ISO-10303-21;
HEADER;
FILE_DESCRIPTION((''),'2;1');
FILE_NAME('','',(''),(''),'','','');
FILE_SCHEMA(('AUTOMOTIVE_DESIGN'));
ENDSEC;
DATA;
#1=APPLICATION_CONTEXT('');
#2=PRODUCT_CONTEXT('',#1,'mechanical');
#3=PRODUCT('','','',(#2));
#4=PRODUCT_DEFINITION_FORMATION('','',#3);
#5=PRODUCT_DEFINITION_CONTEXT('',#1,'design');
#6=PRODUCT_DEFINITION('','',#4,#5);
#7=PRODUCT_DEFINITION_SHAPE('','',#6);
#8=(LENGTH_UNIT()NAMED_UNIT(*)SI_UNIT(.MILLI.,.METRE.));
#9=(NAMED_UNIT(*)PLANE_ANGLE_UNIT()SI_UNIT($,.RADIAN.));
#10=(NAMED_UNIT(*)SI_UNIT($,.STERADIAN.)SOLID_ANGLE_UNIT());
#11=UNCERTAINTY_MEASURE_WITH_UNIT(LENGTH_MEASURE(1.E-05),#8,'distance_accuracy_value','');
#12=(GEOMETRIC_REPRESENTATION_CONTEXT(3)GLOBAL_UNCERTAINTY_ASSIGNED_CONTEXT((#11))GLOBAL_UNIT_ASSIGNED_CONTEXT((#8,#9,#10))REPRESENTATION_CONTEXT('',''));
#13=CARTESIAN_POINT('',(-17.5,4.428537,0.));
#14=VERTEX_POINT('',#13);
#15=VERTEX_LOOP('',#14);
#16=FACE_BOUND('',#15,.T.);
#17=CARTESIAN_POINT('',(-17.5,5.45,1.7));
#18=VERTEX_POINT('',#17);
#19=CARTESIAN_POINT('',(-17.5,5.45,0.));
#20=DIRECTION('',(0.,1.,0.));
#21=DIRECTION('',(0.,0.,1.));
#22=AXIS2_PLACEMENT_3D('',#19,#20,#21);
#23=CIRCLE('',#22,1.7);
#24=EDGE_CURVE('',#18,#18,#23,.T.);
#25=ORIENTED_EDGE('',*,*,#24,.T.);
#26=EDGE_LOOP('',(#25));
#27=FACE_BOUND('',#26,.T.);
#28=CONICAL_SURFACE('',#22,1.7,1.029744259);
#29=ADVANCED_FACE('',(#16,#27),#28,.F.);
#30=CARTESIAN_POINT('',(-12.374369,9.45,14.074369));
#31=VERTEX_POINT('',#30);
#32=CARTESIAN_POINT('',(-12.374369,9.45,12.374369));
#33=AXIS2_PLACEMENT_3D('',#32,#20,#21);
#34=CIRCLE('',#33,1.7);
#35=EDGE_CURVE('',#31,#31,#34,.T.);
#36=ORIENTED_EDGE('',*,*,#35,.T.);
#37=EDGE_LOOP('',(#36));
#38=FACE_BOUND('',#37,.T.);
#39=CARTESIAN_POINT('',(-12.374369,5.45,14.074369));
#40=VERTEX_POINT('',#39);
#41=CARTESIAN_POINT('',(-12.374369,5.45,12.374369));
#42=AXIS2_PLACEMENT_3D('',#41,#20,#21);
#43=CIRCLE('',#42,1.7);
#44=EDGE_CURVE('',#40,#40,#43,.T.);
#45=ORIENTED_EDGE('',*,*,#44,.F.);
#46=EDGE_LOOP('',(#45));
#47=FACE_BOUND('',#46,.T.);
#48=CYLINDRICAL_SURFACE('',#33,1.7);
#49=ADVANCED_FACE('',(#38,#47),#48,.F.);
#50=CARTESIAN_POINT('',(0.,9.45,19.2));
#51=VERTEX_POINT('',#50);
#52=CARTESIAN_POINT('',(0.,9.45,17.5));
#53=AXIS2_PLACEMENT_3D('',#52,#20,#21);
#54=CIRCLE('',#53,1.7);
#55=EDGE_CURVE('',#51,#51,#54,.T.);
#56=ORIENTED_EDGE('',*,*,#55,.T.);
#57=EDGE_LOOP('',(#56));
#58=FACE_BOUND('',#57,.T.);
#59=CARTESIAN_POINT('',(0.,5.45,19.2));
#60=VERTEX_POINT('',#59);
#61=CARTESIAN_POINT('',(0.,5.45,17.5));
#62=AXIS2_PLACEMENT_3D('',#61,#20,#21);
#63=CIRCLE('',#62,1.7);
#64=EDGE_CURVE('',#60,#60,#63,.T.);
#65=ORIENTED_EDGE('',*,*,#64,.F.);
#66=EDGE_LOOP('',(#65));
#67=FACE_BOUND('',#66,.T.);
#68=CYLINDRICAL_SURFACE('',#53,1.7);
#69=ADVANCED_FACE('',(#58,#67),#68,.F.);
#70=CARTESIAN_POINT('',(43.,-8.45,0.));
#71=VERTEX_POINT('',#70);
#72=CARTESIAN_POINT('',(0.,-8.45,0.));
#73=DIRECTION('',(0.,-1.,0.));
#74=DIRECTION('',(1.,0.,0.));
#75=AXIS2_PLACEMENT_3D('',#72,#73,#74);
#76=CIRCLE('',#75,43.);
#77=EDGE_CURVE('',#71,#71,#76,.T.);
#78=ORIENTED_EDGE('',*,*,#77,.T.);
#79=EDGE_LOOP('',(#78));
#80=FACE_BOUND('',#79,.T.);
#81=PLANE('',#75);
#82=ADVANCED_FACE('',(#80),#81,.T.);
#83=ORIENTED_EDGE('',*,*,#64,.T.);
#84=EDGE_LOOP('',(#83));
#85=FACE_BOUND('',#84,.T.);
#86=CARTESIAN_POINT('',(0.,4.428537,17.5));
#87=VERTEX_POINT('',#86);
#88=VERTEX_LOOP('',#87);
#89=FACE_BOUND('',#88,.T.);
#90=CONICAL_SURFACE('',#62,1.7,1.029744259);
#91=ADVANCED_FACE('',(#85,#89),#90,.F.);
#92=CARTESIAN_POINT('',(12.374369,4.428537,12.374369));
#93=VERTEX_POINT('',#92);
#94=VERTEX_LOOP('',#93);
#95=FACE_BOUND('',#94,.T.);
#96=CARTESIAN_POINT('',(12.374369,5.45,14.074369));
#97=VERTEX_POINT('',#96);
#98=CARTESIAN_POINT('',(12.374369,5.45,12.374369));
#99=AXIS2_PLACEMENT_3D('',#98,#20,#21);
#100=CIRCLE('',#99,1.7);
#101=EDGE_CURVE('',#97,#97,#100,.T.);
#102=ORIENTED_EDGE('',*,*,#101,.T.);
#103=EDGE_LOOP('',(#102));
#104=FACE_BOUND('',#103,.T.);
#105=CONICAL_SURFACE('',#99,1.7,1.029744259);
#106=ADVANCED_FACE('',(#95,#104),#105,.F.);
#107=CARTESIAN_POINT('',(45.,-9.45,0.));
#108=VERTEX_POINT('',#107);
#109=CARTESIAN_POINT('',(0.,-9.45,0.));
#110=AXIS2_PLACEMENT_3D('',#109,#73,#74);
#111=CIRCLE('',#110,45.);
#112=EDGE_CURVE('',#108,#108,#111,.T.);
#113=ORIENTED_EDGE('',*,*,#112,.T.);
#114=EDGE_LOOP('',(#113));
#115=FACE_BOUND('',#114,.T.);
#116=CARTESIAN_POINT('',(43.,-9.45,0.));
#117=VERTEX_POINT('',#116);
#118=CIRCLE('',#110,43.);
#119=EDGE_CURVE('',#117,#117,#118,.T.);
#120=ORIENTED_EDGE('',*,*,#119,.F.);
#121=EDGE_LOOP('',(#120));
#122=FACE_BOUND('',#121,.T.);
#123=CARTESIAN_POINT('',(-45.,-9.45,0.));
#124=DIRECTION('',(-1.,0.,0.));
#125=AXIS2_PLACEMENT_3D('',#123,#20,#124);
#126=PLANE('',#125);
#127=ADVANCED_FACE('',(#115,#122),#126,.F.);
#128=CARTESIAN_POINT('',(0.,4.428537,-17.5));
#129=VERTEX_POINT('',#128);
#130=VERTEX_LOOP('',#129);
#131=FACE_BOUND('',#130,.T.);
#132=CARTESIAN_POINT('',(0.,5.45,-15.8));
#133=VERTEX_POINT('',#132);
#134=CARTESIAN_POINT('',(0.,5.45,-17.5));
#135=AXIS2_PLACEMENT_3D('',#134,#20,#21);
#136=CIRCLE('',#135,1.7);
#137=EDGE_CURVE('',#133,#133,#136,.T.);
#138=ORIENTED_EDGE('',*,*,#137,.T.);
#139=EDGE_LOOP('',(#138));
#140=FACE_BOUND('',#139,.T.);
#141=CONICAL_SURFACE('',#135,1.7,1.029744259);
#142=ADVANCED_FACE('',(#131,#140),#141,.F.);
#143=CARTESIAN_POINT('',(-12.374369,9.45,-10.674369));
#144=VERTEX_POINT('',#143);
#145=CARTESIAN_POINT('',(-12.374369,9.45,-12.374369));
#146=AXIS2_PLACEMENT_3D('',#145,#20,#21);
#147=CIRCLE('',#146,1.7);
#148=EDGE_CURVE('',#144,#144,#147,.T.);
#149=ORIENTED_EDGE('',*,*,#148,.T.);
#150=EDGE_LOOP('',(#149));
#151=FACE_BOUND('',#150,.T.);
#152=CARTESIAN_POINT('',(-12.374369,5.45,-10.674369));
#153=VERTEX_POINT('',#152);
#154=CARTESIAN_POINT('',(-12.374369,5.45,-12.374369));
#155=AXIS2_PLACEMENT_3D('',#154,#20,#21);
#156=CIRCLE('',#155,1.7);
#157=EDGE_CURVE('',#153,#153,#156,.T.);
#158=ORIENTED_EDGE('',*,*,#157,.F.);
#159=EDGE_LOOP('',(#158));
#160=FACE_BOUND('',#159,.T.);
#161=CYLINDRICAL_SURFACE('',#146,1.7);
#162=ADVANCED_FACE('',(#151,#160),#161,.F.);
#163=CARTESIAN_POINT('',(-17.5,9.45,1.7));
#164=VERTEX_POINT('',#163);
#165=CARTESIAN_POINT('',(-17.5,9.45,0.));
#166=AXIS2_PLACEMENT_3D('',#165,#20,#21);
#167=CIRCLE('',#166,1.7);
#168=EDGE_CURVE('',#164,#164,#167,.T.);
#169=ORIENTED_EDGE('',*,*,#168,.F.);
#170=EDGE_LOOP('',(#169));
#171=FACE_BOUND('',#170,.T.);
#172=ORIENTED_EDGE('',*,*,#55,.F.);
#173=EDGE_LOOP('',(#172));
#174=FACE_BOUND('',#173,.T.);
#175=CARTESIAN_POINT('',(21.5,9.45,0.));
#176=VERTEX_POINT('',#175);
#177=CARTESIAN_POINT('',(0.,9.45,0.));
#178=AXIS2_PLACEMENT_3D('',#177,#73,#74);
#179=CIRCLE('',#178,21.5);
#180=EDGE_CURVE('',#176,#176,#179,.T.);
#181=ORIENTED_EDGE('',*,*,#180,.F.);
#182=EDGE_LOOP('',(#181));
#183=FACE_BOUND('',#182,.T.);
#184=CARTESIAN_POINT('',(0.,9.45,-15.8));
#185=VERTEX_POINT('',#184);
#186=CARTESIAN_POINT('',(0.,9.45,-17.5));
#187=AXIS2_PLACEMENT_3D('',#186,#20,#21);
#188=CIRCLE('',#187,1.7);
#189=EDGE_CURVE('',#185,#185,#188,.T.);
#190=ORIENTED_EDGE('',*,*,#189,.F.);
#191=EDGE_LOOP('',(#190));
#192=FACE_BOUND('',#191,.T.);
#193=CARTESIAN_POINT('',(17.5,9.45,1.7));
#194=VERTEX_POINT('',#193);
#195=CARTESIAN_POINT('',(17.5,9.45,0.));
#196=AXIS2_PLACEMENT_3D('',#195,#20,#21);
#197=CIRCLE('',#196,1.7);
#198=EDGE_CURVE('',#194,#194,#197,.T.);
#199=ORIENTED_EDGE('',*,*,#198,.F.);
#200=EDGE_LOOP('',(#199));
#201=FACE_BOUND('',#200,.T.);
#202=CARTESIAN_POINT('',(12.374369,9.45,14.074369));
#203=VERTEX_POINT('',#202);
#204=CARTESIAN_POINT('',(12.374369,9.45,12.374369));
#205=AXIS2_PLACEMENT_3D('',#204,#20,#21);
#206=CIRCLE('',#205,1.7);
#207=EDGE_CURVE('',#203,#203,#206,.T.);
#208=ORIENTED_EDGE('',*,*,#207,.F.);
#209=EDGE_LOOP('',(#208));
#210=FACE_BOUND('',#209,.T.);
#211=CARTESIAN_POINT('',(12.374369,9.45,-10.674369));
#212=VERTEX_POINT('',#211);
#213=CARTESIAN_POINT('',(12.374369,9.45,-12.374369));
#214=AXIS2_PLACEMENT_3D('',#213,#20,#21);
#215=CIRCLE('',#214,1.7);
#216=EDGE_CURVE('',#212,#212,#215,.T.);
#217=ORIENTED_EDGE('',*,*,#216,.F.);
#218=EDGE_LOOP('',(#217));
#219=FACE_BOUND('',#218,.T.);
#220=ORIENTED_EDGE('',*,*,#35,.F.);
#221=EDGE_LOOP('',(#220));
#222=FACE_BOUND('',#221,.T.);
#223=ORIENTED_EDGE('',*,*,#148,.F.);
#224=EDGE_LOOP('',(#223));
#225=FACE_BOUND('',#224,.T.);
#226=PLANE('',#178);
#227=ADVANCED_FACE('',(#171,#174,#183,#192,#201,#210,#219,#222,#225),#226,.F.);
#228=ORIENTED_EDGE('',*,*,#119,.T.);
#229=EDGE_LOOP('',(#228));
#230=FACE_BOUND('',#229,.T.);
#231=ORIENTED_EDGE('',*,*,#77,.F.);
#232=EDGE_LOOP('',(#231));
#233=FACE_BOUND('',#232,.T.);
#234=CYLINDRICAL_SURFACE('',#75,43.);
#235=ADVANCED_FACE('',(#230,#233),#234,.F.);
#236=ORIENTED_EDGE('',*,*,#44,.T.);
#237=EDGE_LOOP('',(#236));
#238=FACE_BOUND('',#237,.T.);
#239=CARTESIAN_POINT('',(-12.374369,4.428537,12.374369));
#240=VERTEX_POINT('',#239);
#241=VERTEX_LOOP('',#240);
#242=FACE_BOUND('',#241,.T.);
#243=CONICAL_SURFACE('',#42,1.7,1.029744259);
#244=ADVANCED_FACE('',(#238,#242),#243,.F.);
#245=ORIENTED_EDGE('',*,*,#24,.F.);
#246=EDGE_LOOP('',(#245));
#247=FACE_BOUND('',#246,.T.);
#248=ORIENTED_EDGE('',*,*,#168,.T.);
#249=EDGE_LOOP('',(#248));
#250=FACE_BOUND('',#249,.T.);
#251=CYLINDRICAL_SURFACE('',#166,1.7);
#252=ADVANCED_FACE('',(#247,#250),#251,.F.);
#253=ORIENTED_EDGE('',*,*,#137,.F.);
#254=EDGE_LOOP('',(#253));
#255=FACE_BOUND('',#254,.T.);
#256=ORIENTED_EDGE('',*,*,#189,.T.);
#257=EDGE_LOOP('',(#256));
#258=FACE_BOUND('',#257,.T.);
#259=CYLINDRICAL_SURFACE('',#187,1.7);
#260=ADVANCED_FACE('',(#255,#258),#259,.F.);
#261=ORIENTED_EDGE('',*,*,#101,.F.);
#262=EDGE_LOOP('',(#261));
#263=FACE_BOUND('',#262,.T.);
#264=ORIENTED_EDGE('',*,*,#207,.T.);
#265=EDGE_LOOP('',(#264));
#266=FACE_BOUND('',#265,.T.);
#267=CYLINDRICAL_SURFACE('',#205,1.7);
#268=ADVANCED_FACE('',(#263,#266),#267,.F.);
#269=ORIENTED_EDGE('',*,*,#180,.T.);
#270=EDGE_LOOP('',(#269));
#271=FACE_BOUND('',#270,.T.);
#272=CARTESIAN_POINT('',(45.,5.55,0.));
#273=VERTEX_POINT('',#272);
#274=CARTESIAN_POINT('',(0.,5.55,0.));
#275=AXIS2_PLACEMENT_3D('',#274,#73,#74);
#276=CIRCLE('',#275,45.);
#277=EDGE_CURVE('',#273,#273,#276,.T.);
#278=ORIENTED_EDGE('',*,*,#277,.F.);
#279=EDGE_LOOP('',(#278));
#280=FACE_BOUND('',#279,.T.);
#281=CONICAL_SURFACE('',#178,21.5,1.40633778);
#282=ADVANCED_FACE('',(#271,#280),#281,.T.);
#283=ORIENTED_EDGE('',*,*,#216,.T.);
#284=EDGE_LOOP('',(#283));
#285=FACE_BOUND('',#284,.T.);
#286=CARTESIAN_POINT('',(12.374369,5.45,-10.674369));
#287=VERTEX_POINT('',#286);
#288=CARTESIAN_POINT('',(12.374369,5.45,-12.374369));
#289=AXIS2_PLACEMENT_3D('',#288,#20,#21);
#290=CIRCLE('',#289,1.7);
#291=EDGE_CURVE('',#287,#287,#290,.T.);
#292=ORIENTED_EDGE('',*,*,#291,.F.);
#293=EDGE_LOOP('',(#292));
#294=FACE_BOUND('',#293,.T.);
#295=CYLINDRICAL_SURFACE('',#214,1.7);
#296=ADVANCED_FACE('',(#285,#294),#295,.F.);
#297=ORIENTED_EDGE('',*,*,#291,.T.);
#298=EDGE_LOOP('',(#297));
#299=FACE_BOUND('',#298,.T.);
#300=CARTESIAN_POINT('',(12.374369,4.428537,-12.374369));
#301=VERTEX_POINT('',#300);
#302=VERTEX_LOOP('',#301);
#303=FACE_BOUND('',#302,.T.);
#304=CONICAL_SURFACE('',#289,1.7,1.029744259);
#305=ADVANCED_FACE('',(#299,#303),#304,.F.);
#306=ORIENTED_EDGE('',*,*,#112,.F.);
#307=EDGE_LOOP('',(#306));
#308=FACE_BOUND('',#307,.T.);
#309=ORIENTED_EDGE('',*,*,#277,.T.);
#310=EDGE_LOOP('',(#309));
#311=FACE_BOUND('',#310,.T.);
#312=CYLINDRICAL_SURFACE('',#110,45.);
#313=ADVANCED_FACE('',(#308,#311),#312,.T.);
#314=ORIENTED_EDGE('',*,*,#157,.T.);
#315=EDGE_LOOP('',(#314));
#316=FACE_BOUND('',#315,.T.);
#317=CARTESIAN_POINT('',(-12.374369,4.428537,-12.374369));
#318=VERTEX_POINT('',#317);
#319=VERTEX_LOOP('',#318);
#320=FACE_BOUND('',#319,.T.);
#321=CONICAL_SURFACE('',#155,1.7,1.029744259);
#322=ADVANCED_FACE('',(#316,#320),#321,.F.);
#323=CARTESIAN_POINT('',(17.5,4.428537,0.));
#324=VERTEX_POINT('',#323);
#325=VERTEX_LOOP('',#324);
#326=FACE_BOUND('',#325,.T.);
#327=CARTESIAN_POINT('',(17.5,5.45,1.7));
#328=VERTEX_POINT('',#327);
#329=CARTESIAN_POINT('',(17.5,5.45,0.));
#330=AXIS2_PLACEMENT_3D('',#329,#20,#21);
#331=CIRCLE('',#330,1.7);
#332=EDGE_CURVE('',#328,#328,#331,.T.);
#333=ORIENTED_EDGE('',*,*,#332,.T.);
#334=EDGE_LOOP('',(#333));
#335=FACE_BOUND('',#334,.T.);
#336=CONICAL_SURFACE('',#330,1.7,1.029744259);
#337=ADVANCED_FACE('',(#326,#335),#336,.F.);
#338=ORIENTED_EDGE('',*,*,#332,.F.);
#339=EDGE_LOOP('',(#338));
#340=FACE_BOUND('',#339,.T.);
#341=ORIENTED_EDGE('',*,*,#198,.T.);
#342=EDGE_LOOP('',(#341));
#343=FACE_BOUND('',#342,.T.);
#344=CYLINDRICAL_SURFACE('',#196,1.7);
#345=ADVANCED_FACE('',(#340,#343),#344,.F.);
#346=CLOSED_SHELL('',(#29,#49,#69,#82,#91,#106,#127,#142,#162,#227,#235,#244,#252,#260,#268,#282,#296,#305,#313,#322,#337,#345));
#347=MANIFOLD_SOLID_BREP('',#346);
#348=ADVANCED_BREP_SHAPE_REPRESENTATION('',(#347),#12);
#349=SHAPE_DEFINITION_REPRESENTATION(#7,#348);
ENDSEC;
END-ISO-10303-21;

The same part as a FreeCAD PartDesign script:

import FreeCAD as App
import Part
import Sketcher

V = App.Vector
Q = App.Units.Quantity

doc = App.newDocument("Part")
body = doc.addObject("PartDesign::Body", "Body")

sketch1 = body.newObject("Sketcher::SketchObject", "Sketch")
sketch1.AttachmentSupport = (doc.getObject("XY_Plane"), [""])
sketch1.MapMode = "FlatFace"
sketch1.addGeometry([
    Part.LineSegment(V(0, -9, 0), V(0, 9, 0)),
    Part.LineSegment(V(0, 9, 0), V(-22, 9, 0)),
    Part.LineSegment(V(-22, 9, 0), V(-45, 6, 0)),
    Part.LineSegment(V(-45, 6, 0), V(-45, -9, 0)),
    Part.LineSegment(V(-45, -9, 0), V(0, -9, 0)),
], False)
sketch1.addConstraint([
    Sketcher.Constraint("Coincident", 0, 2, 1, 1),
    Sketcher.Constraint("Coincident", 1, 2, 2, 1),
    Sketcher.Constraint("Coincident", 2, 2, 3, 1),
    Sketcher.Constraint("Coincident", 3, 2, 4, 1),
    Sketcher.Constraint("Coincident", 4, 2, 0, 1),
    Sketcher.Constraint("Vertical", 0),
    Sketcher.Constraint("Horizontal", 1),
    Sketcher.Constraint("Vertical", 3),
    Sketcher.Constraint("Horizontal", 4),
    Sketcher.Constraint("Symmetric", 0, 2, 4, 2, -1, 1),
    Sketcher.Constraint("DistanceX", 4, 1, 4, 2, Q("45 mm")),
    Sketcher.Constraint("DistanceY", 3, 2, 3, 1, Q("15 mm")),
    Sketcher.Constraint("DistanceX", 1, 2, 1, 1, Q("21.5 mm")),
    Sketcher.Constraint("DistanceY", 0, 1, 0, 2, Q("18.9 mm")),
])
revolution = body.newObject("PartDesign::Revolution", "Revolution")
revolution.Profile = sketch1
revolution.ReferenceAxis = (sketch1, ["V_Axis"])
revolution.Angle = 360

sketch2 = body.newObject("Sketcher::SketchObject", "Sketch001")
sketch2.AttachmentSupport = (doc.getObject("XZ_Plane"), [""])
sketch2.MapMode = "FlatFace"
sketch2.AttachmentOffset = App.Placement(V(0, 0, 9.45), App.Rotation())
sketch2.addGeometry(Part.Circle(V(0, 0, 0), V(0, 0, 1), 43), False)
sketch2.addConstraint([
    Sketcher.Constraint("Coincident", 0, 3, -1, 1),
    Sketcher.Constraint("Diameter", 0, Q("86 mm")),
])
pocket1 = body.newObject("PartDesign::Pocket", "Pocket")
pocket1.Profile = sketch2
pocket1.Length = 1

sketch3 = body.newObject("Sketcher::SketchObject", "Sketch002")
sketch3.AttachmentSupport = (doc.getObject("XZ_Plane"), [""])
sketch3.MapMode = "FlatFace"
sketch3.AttachmentOffset = App.Placement(V(0, 0, -9.45), App.Rotation())
sketch3.addGeometry([
    Part.Circle(V(0, -17.5, 0), V(0, 0, 1), 1.7),
    Part.Circle(V(-12.4, -12.4, 0), V(0, 0, 1), 1.7),
    Part.Circle(V(-17.5, 0, 0), V(0, 0, 1), 1.7),
    Part.Circle(V(-12.4, 12.4, 0), V(0, 0, 1), 1.7),
    Part.Circle(V(0, 17.5, 0), V(0, 0, 1), 1.7),
    Part.Circle(V(12.4, 12.4, 0), V(0, 0, 1), 1.7),
    Part.Circle(V(17.5, 0, 0), V(0, 0, 1), 1.7),
    Part.Circle(V(12.4, -12.4, 0), V(0, 0, 1), 1.7),
], False)
sketch3.addConstraint([
    Sketcher.Constraint("Equal", 0, 1),
    Sketcher.Constraint("Equal", 1, 2),
    Sketcher.Constraint("Equal", 2, 3),
    Sketcher.Constraint("Equal", 3, 4),
    Sketcher.Constraint("Equal", 4, 5),
    Sketcher.Constraint("Equal", 5, 6),
    Sketcher.Constraint("Equal", 6, 7),
    Sketcher.Constraint("Symmetric", 0, 3, 4, 3, -1, 1),
    Sketcher.Constraint("Symmetric", 1, 3, 5, 3, -1, 1),
    Sketcher.Constraint("Symmetric", 2, 3, 6, 3, -1, 1),
    Sketcher.Constraint("Symmetric", 3, 3, 7, 3, -1, 1),
    Sketcher.Constraint("Symmetric", 3, 3, 5, 3, -2),
    Sketcher.Constraint("PointOnObject", 0, 3, -2),
    Sketcher.Constraint("PointOnObject", 2, 3, -1),
    Sketcher.Constraint("Diameter", 0, Q("3.4 mm")),
    Sketcher.Constraint("DistanceY", 0, 3, 4, 3, Q("35 mm")),
    Sketcher.Constraint("DistanceX", 2, 3, -1, 1, Q("17.5 mm")),
    Sketcher.Constraint("DistanceX", 1, 3, -1, 1, Q("12.374369 mm")),
    Sketcher.Constraint("DistanceY", 1, 3, -1, 1, Q("12.374369 mm")),
])
doc.recompute()
hole = body.newObject("PartDesign::Hole", "Hole")
hole.Profile = sketch3
hole.ThreadType = "None"
hole.Diameter = 3.4
hole.DepthType = "Dimension"
hole.Depth = 4
hole.DrillPoint = "Angled"
hole.DrillPointAngle = 118
hole.Reversed = True

doc.recompute()
